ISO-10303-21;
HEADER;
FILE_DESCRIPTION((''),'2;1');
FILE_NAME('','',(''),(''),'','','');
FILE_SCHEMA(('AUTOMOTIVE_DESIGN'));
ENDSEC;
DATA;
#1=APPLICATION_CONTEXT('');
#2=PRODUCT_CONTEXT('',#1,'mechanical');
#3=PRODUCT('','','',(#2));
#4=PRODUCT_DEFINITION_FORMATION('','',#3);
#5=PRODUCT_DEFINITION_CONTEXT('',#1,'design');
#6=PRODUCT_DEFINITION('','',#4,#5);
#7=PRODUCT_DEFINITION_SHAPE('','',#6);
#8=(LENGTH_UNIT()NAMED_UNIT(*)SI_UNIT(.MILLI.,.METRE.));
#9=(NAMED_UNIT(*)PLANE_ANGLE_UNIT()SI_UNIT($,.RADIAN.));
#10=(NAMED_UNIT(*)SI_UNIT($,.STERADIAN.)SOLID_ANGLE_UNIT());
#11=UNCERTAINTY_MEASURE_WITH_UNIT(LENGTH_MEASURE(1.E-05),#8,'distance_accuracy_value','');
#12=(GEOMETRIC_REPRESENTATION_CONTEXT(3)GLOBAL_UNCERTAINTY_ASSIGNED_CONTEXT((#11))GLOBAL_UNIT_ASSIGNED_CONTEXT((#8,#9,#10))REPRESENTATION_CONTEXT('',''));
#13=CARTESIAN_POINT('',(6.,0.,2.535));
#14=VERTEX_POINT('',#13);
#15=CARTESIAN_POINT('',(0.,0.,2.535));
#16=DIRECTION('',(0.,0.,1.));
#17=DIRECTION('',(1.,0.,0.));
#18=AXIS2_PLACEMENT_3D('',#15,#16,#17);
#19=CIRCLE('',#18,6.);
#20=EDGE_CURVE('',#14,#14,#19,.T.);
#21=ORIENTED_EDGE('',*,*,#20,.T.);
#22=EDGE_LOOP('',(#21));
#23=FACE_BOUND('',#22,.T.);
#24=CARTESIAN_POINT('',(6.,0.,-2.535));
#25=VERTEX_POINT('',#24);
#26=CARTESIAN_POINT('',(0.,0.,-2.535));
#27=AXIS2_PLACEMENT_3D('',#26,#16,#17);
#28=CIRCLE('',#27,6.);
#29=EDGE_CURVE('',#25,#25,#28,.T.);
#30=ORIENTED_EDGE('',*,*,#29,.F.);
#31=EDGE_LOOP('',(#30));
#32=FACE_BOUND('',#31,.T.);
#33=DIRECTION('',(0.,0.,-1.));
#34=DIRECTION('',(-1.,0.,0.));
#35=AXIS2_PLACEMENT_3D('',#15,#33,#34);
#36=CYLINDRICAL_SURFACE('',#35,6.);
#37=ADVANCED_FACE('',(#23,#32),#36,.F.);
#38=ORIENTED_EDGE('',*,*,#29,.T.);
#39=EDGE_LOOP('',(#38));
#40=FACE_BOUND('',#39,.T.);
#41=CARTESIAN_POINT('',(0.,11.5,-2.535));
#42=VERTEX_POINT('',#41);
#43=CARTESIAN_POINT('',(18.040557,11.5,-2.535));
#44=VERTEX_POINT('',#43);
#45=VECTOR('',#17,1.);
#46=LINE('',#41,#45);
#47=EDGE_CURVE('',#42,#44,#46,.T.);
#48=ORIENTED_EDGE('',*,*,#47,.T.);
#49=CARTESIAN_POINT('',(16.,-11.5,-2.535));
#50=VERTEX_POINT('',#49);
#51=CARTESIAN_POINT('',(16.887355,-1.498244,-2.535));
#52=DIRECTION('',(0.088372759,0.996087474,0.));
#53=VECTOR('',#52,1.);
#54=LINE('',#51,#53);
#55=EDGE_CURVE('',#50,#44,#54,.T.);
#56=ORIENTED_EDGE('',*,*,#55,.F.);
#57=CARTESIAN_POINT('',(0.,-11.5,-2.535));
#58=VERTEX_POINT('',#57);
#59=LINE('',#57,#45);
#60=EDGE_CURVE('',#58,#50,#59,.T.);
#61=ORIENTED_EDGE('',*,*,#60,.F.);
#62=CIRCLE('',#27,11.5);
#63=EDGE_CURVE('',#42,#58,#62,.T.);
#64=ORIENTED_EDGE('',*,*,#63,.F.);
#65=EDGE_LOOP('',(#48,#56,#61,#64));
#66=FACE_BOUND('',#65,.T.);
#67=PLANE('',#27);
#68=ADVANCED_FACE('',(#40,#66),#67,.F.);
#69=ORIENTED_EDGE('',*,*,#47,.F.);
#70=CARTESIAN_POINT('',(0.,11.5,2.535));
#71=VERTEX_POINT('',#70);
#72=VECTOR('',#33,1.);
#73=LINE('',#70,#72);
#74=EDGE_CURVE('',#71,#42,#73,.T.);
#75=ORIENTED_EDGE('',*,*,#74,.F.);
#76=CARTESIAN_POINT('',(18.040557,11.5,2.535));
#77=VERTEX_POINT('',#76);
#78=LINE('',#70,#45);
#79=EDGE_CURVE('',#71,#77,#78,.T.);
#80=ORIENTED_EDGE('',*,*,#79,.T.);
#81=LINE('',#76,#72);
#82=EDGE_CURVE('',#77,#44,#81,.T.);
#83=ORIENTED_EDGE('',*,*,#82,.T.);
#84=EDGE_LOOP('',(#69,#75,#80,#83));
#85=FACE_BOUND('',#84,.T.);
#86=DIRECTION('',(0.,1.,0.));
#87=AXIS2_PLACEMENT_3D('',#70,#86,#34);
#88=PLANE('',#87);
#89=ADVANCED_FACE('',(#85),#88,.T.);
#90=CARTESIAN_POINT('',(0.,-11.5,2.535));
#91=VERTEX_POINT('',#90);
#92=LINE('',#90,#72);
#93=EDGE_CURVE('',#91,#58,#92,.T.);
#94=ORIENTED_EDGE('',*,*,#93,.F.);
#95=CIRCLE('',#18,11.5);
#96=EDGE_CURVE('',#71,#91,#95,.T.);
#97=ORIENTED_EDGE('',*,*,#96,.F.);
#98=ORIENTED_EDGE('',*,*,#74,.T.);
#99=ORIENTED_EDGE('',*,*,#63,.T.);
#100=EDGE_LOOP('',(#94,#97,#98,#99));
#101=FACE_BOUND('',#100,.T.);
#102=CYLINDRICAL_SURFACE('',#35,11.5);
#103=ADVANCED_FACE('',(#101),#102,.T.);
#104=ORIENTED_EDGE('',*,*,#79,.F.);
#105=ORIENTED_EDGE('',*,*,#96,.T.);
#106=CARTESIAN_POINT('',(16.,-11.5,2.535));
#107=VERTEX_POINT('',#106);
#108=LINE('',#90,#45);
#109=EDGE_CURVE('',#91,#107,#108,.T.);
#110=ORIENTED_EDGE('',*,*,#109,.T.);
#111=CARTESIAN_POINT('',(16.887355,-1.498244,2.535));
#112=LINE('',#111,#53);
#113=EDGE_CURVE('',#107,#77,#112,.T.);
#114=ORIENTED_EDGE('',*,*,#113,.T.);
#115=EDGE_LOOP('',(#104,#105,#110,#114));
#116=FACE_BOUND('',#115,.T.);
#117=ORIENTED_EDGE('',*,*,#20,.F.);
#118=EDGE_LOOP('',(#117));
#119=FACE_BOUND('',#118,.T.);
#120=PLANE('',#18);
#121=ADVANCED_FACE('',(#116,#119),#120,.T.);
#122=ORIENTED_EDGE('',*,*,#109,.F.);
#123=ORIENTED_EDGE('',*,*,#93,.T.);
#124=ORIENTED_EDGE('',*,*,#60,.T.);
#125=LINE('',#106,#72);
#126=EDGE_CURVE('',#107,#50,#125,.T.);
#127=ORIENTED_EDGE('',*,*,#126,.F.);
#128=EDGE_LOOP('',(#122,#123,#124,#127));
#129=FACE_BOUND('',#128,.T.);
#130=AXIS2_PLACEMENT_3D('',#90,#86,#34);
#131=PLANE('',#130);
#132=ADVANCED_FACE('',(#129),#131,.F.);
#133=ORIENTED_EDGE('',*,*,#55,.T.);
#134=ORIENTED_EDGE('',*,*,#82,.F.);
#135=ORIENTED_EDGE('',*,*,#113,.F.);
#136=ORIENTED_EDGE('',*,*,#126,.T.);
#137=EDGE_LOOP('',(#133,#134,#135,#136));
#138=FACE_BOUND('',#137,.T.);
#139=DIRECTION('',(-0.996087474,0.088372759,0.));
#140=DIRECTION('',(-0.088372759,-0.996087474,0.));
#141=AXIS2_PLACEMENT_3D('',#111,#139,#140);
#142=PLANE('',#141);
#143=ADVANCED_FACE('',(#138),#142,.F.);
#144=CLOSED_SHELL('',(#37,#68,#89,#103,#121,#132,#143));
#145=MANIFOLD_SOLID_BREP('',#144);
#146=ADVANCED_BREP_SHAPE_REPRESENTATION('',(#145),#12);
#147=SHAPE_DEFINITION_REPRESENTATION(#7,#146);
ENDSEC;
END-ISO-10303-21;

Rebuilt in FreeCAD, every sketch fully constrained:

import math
import FreeCAD as App
import Part
import Sketcher
from FreeCAD import Vector
Q = App.Units.Quantity

doc = App.newDocument("Part")
body = doc.addObject("PartDesign::Body", "Body")

# Sketch on XY plane
sketch1 = body.newObject("Sketcher::SketchObject", "Sketch")
sketch1.AttachmentSupport = (doc.getObject("XY_Plane"), [""])
sketch1.MapMode = "FlatFace"
sketch1.addGeometry([
    Part.ArcOfCircle(Part.Circle(Vector(0, 0, 0), Vector(0, 0, 1), 12), math.radians(90), math.radians(270)),  # 0
    Part.LineSegment(Vector(0, -12, 0), Vector(16, -12, 0)),  # 1
    Part.LineSegment(Vector(16, -12, 0), Vector(18, 12, 0)),  # 2
    Part.LineSegment(Vector(18, 12, 0), Vector(0, 12, 0)),  # 3
    Part.Circle(Vector(0, 0, 0), Vector(0, 0, 1), 6),  # 4
], False)
sketch1.addConstraint([
    Sketcher.Constraint("Tangent", 0, 2, 1, 1),
    Sketcher.Constraint("Coincident", 1, 2, 2, 1),
    Sketcher.Constraint("Coincident", 2, 2, 3, 1),
    Sketcher.Constraint("Tangent", 3, 2, 0, 1),
    Sketcher.Constraint("Horizontal", 1),
    Sketcher.Constraint("Horizontal", 3),
    Sketcher.Constraint("Coincident", 0, 3, -1, 1),
    Sketcher.Constraint("Coincident", 4, 3, -1, 1),
    Sketcher.Constraint("Diameter", 4, Q("12 mm")),
    Sketcher.Constraint("Radius", 0, Q("11.5 mm")),
    Sketcher.Constraint("DistanceX", 1, 1, 1, 2, Q("16 mm")),
    Sketcher.Constraint("Angle", 2, Q("84.93 deg")),
])
pad1 = body.newObject("PartDesign::Pad", "Pad")
pad1.Profile = sketch1
pad1.Length = 5.07
pad1.Midplane = True

doc.recompute()
